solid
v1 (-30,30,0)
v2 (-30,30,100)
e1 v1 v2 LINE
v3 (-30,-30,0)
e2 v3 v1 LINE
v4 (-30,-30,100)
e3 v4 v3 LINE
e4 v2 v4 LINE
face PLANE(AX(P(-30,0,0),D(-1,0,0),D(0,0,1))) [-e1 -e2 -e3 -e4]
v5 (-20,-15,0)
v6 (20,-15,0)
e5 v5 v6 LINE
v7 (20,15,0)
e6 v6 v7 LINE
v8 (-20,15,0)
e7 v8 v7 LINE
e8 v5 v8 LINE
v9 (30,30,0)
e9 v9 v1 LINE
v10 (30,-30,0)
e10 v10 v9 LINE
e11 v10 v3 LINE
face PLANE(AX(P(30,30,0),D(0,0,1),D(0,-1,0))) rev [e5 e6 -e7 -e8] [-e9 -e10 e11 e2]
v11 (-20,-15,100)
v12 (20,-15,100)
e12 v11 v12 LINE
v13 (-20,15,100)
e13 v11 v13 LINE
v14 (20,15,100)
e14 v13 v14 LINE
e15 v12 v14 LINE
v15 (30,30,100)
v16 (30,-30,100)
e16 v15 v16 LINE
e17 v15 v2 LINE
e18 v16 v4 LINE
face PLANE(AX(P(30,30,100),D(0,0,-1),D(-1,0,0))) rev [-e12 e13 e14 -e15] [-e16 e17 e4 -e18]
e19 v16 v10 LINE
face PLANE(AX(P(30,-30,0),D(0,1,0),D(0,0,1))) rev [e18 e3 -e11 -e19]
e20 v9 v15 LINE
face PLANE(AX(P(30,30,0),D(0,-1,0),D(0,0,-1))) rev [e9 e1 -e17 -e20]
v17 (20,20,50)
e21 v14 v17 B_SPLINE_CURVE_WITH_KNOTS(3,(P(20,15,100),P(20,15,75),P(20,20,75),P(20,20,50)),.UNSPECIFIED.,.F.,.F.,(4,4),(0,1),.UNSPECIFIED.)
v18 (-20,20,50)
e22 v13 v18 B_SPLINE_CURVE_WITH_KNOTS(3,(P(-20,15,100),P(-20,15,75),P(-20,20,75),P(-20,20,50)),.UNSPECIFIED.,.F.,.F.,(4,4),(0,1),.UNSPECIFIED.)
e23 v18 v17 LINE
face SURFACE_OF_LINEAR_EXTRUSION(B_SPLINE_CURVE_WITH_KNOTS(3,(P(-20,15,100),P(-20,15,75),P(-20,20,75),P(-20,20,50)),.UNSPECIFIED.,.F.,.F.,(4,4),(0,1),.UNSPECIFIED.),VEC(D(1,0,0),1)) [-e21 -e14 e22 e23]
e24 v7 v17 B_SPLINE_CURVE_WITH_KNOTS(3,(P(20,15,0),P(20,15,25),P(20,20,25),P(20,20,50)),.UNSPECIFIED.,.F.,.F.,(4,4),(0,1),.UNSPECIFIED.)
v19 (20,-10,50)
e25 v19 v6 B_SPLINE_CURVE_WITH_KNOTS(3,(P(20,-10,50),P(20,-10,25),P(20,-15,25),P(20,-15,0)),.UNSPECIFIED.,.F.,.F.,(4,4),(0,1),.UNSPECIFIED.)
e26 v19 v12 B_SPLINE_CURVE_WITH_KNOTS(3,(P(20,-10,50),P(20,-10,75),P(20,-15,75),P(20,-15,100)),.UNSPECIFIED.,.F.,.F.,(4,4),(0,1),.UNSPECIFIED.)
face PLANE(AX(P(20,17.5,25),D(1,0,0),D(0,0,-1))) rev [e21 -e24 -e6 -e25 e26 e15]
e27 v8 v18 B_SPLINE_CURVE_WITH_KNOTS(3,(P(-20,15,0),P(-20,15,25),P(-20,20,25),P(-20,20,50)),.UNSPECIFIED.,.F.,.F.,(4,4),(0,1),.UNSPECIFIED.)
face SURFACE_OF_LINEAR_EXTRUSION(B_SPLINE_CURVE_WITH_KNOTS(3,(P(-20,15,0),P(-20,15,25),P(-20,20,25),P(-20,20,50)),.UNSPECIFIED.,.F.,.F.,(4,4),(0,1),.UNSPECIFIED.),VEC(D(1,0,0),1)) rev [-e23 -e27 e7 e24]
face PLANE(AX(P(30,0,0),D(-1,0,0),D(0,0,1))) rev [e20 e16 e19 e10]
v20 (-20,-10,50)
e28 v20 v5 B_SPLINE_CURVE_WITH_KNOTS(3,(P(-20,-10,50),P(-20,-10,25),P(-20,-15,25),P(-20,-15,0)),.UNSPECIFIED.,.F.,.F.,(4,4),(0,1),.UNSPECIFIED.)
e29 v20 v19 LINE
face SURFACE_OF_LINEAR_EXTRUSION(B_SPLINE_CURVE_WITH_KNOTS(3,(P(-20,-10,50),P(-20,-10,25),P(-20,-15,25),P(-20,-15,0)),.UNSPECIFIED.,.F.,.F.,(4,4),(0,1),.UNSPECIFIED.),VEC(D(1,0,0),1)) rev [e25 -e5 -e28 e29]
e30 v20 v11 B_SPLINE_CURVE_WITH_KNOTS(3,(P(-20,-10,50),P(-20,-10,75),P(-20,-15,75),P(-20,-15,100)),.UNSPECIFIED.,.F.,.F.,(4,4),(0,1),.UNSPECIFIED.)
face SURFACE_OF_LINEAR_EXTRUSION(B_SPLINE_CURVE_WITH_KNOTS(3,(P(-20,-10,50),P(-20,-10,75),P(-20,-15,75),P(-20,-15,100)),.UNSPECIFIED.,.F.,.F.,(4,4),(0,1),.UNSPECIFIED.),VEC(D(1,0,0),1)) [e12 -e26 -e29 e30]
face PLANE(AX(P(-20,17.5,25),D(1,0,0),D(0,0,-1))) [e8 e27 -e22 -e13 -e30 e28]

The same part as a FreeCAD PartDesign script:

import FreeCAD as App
import Part
import Sketcher

V = App.Vector


def add_polygon(sketch, points):
    """Adds a closed chain of lines whose ends are joined by coincident constraints."""
    first, n = sketch.GeometryCount, len(points)
    for a, b in zip(points, points[1:] + points[:1]):
        sketch.addGeometry(Part.LineSegment(App.Vector(*a, 0), App.Vector(*b, 0)), False)
    for i in range(n):
        sketch.addConstraint(Sketcher.Constraint("Coincident", first + i, 2, first + (i + 1) % n, 1))

doc = App.newDocument("Part")
body = doc.addObject("PartDesign::Body", "Body")

sketch1 = body.newObject("Sketcher::SketchObject", "Sketch")
sketch1.AttachmentSupport = (doc.getObject("YZ_Plane"), [""])
sketch1.MapMode = "FlatFace"
add_polygon(sketch1, [(30, 100), (-30, 100), (-30, 0), (30, 0)])
sketch1.addConstraint([
    Sketcher.Constraint("Horizontal", 0),
    Sketcher.Constraint("Vertical", 1),
    Sketcher.Constraint("Horizontal", 2),
    Sketcher.Constraint("Vertical", 3),
    Sketcher.Constraint("Symmetric", 1, 2, 2, 2, -1, 1),
    Sketcher.Constraint("DistanceX", 0, 2, 0, 1, 60.0),
    Sketcher.Constraint("DistanceY", 1, 2, 1, 1, 100.0),
])
pad1 = body.newObject("PartDesign::Pad", "Pad")
pad1.Profile = sketch1
pad1.Length = 60
pad1.Midplane = True

sketch2 = body.newObject("Sketcher::SketchObject", "Sketch001")
sketch2.AttachmentSupport = (doc.getObject("YZ_Plane"), [""])
sketch2.MapMode = "FlatFace"
sketch2.addGeometry([
    Part.LineSegment(V(-15, 0, 0), V(15, 0, 0)),
    Part.BSplineCurve([V(15, 0, 0), V(15, 25, 0), V(20, 25, 0), V(20, 50, 0)], [4, 4], [0, 1], False, 3, [1, 1, 1, 1], False),
    Part.LineSegment(V(20, 50, 0), V(-10, 50, 0)),
    Part.BSplineCurve([V(-15, 0, 0), V(-15, 25, 0), V(-10, 25, 0), V(-10, 50, 0)], [4, 4], [0, 1], False, 3, [1, 1, 1, 1], False),
], False)
sketch2.addConstraint([
    Sketcher.Constraint("Block", 1),
    Sketcher.Constraint("Block", 3),
    Sketcher.Constraint("Coincident", 0, 2, 1, 1),
    Sketcher.Constraint("Coincident", 1, 2, 2, 1),
    Sketcher.Constraint("Coincident", 2, 2, 3, 2),
    Sketcher.Constraint("Coincident", 3, 1, 0, 1),
])
pocket1 = body.newObject("PartDesign::Pocket", "Pocket")
pocket1.Profile = sketch2
pocket1.Length = 40
pocket1.Midplane = True
doc.recompute()

datumplane = body.newObject("PartDesign::Plane", "DatumPlane")
datumplane.AttachmentSupport = (doc.getObject("XY_Plane"), [""])
datumplane.MapMode = "FlatFace"
datumplane.AttachmentOffset = App.Placement(V(0, 0, 50), App.Rotation())
mirrored = body.newObject("PartDesign::Mirrored", "Mirrored")
mirrored.Originals = [pocket1]
mirrored.MirrorPlane = (datumplane, [""])
body.Tip = mirrored

doc.recompute()
